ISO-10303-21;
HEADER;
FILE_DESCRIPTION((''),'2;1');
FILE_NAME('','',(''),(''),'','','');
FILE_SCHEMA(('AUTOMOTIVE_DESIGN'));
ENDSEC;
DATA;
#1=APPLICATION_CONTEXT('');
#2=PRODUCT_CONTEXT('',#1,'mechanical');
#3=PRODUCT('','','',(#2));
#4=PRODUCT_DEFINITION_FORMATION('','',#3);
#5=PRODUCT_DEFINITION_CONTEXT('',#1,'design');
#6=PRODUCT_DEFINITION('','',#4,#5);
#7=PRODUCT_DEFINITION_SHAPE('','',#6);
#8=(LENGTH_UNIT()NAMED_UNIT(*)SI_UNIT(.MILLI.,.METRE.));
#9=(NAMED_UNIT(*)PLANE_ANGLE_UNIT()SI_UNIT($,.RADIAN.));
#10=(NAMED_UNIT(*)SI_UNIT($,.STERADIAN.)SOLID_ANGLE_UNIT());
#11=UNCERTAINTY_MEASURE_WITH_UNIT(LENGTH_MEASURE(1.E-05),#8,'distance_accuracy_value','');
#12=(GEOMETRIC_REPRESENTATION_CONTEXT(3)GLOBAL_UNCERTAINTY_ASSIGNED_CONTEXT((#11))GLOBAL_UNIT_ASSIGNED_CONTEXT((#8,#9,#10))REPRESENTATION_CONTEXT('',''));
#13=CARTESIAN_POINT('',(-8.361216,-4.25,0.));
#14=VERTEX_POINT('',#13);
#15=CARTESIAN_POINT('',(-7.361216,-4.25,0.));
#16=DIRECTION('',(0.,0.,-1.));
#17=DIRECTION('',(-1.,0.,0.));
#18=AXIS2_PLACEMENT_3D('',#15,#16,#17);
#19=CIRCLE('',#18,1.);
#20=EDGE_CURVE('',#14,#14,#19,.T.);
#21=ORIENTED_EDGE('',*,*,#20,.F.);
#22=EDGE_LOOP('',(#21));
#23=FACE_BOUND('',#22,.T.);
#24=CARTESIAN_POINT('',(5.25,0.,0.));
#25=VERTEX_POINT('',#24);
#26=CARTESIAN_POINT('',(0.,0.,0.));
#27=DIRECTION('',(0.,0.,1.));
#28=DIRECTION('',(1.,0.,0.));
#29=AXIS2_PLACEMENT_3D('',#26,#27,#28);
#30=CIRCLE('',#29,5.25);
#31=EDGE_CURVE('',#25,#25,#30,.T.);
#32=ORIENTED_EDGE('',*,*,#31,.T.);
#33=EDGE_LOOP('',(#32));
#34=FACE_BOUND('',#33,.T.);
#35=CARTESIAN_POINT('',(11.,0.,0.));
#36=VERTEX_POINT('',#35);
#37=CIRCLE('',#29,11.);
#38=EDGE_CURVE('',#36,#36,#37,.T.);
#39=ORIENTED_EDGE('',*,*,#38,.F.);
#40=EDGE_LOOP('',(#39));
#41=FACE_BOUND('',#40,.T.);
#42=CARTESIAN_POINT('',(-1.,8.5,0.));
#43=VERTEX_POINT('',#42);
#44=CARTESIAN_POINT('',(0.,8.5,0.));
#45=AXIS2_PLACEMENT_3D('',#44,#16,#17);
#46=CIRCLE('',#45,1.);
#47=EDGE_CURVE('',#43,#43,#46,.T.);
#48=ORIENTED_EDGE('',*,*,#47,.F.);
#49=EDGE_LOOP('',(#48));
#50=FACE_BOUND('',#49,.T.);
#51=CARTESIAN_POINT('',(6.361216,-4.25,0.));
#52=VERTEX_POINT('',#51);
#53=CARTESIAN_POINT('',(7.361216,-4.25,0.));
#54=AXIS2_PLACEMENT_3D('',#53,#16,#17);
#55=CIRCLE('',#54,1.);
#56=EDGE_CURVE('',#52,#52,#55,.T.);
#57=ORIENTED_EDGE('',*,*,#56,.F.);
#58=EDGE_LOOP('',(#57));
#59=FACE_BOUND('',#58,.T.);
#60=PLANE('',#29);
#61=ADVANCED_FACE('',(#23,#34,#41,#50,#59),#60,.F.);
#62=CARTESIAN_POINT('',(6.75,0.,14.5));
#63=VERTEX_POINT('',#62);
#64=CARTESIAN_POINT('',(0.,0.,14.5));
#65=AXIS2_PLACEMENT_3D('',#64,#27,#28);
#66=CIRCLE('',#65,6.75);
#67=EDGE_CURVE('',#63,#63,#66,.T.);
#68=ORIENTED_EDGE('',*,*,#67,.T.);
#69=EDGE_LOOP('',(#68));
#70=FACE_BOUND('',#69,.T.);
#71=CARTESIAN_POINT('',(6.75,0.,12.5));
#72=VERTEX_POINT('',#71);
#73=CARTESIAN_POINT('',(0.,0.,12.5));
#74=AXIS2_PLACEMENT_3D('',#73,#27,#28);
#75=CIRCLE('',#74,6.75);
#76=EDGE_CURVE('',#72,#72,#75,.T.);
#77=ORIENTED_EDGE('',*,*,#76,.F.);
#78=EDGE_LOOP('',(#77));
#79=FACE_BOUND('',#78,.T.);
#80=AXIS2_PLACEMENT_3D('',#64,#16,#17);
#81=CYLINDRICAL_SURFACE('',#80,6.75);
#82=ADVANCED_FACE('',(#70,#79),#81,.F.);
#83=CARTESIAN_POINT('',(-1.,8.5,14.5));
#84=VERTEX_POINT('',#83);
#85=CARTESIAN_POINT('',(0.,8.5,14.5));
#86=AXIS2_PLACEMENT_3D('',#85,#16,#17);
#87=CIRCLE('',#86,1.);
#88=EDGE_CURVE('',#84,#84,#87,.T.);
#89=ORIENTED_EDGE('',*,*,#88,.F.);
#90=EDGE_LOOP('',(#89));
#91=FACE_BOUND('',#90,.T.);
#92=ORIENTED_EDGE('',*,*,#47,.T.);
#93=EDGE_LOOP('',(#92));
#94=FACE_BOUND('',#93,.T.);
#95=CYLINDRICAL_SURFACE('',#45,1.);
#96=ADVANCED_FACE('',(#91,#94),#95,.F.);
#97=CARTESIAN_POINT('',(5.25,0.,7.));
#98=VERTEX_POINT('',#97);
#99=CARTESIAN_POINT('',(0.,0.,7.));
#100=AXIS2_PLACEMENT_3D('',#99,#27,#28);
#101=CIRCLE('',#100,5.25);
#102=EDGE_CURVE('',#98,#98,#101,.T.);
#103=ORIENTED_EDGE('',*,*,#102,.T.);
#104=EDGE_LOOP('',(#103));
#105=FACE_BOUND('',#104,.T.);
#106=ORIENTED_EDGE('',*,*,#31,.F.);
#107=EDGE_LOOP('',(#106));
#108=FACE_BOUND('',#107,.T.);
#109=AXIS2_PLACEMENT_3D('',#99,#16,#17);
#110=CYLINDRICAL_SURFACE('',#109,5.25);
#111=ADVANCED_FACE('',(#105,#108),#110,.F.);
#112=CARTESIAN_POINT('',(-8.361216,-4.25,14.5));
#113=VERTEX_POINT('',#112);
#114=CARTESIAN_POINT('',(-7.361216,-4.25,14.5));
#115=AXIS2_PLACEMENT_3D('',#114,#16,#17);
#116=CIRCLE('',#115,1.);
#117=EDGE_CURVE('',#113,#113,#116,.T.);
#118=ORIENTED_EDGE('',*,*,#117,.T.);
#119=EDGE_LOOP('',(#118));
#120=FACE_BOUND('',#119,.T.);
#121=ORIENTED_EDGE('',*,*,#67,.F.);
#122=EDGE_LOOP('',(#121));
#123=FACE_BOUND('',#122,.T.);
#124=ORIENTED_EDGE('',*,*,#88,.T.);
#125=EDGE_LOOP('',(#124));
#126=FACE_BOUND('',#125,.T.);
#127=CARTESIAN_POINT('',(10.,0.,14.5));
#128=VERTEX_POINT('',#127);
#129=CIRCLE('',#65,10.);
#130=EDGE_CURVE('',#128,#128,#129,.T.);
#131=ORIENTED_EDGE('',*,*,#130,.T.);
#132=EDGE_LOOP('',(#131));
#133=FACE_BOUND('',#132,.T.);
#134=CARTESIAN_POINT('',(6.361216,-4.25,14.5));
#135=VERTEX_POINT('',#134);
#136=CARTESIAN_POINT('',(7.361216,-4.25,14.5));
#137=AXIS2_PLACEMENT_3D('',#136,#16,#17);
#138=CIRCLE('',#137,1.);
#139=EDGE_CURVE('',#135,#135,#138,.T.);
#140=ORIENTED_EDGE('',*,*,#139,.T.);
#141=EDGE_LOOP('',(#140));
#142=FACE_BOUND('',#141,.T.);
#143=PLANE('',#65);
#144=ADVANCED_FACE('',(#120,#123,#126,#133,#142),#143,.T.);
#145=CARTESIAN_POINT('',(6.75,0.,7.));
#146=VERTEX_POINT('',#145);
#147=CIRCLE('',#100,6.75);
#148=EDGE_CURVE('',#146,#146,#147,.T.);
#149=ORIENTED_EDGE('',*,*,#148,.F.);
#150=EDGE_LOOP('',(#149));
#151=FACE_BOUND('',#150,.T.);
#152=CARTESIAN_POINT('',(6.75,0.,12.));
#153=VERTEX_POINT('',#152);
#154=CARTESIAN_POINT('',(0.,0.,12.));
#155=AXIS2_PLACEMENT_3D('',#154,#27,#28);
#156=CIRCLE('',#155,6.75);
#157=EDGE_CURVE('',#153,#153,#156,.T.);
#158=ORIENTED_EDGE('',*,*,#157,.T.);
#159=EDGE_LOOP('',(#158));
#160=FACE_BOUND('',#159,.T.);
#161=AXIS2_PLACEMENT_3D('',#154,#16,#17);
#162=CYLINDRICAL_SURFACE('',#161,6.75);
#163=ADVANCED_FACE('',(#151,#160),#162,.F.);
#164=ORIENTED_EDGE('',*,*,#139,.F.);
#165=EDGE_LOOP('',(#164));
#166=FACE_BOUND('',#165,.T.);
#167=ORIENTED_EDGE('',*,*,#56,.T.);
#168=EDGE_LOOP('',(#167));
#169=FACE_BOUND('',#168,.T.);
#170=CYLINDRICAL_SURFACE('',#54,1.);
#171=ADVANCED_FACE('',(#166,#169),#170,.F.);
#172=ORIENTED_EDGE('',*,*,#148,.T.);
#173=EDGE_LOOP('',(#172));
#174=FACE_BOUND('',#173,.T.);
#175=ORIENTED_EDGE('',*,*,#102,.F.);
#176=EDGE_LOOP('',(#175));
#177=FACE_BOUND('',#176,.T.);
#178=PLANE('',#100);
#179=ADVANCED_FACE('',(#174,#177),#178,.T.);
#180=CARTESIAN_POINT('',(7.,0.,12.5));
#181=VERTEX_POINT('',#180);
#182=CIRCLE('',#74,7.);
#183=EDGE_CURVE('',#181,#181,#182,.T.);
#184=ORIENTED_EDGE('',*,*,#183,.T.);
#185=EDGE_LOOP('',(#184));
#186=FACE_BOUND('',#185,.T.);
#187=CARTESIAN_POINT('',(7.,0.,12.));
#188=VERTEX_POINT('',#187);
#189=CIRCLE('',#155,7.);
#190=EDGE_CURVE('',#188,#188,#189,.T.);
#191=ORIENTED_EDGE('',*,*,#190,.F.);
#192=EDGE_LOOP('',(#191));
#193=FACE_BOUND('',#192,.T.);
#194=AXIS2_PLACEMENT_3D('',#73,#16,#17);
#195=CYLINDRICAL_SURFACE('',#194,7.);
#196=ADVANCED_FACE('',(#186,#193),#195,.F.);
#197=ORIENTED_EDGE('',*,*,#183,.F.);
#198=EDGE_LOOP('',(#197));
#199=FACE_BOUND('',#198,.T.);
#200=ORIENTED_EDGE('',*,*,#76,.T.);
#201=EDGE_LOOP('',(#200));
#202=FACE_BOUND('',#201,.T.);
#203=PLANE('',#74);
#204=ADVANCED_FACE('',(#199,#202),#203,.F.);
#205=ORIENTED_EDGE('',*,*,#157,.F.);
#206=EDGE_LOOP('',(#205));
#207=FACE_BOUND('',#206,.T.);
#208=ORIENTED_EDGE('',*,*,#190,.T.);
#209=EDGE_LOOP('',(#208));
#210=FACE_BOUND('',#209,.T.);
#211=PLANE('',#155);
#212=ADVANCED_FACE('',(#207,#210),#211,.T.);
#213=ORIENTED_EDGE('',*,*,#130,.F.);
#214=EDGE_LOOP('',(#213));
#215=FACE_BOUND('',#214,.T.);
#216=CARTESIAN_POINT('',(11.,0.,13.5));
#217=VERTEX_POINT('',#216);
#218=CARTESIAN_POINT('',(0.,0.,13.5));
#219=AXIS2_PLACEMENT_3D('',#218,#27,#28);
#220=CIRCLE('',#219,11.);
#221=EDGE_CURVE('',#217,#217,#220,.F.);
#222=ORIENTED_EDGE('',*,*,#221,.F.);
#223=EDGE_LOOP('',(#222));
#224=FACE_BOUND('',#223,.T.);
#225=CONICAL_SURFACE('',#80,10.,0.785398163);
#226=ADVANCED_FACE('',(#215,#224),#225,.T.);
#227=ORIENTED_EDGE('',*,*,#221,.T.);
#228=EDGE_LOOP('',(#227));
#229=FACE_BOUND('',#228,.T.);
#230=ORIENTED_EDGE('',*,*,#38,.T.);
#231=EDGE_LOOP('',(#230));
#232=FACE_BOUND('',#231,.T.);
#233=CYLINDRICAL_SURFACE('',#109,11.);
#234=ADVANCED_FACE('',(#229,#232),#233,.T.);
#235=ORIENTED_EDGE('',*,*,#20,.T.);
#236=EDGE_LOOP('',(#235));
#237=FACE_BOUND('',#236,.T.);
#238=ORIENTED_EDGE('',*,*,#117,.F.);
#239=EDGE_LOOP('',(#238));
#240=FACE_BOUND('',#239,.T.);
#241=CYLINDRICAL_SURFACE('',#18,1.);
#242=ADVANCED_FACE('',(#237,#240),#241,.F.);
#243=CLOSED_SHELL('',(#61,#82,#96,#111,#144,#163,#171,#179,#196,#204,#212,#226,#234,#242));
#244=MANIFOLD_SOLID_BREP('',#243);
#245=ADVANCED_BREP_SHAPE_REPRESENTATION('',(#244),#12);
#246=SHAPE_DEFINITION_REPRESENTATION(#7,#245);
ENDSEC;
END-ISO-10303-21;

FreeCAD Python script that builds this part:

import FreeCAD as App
import Part
import Sketcher

V = App.Vector


def edges_at(feature, points):
    """Names of the edges that pass closest to the given points."""
    edges = feature.Shape.Edges
    near = lambda p: min(range(len(edges)), key=lambda i: edges[i].distToShape(Part.Vertex(*p))[0])
    return sorted({f"Edge{near(p) + 1}" for p in points})

doc = App.newDocument("Part")
body = doc.addObject("PartDesign::Body", "Body")

sketch1 = body.newObject("Sketcher::SketchObject", "Sketch")
sketch1.AttachmentSupport = (doc.getObject("XY_Plane"), [""])
sketch1.MapMode = "FlatFace"
sketch1.addGeometry([
    Part.Circle(V(0, 0, 0), V(0, 0, 1), 11),
    Part.Circle(V(0, 0, 0), V(0, 0, 1), 5),
], False)
sketch1.addConstraint([
    Sketcher.Constraint("Coincident", 0, 3, -1, 1),
    Sketcher.Constraint("Coincident", 1, 3, -1, 1),
    Sketcher.Constraint("Diameter", 0, 22.0),
    Sketcher.Constraint("Diameter", 1, 10.5),
])
pad1 = body.newObject("PartDesign::Pad", "Pad")
pad1.Profile = sketch1
pad1.Length = 7

sketch2 = body.newObject("Sketcher::SketchObject", "Sketch001")
sketch2.AttachmentSupport = (doc.getObject("XY_Plane"), [""])
sketch2.MapMode = "FlatFace"
sketch2.AttachmentOffset = App.Placement(V(0, 0, 7), App.Rotation())
sketch2.addGeometry([
    Part.Circle(V(0, 0, 0), V(0, 0, 1), 11),
    Part.Circle(V(0, 0, 0), V(0, 0, 1), 7),
], False)
sketch2.addConstraint([
    Sketcher.Constraint("Coincident", 0, 3, -1, 1),
    Sketcher.Constraint("Coincident", 1, 3, -1, 1),
    Sketcher.Constraint("Diameter", 0, 22.0),
    Sketcher.Constraint("Diameter", 1, 13.5),
])
pad2 = body.newObject("PartDesign::Pad", "Pad001")
pad2.Profile = sketch2
pad2.Length = 5

sketch3 = body.newObject("Sketcher::SketchObject", "Sketch002")
sketch3.AttachmentSupport = (doc.getObject("XY_Plane"), [""])
sketch3.MapMode = "FlatFace"
sketch3.AttachmentOffset = App.Placement(V(0, 0, 12), App.Rotation())
sketch3.addGeometry([
    Part.Circle(V(0, 0, 0), V(0, 0, 1), 11),
    Part.Circle(V(0, 0, 0), V(0, 0, 1), 7),
], False)
sketch3.addConstraint([
    Sketcher.Constraint("Coincident", 0, 3, -1, 1),
    Sketcher.Constraint("Coincident", 1, 3, -1, 1),
    Sketcher.Constraint("Diameter", 0, 22.0),
    Sketcher.Constraint("Diameter", 1, 14.0),
])
pad3 = body.newObject("PartDesign::Pad", "Pad002")
pad3.Profile = sketch3
pad3.Length = 0.5

sketch4 = body.newObject("Sketcher::SketchObject", "Sketch003")
sketch4.AttachmentSupport = (doc.getObject("XY_Plane"), [""])
sketch4.MapMode = "FlatFace"
sketch4.AttachmentOffset = App.Placement(V(0, 0, 12.5), App.Rotation())
sketch4.addGeometry([
    Part.Circle(V(0, 0, 0), V(0, 0, 1), 11),
    Part.Circle(V(0, 0, 0), V(0, 0, 1), 7),
], False)
sketch4.addConstraint([
    Sketcher.Constraint("Coincident", 0, 3, -1, 1),
    Sketcher.Constraint("Coincident", 1, 3, -1, 1),
    Sketcher.Constraint("Diameter", 0, 22.0),
    Sketcher.Constraint("Diameter", 1, 13.5),
])
pad4 = body.newObject("PartDesign::Pad", "Pad003")
pad4.Profile = sketch4
pad4.Length = 2
doc.recompute()

chamfer = body.newObject("PartDesign::Chamfer", "Chamfer")
chamfer.Base = (pad4, edges_at(pad4, [(-11, 0, 14.5)]))
chamfer.Size = 1

sketch5 = body.newObject("Sketcher::SketchObject", "Sketch004")
sketch5.AttachmentSupport = (doc.getObject("XY_Plane"), [""])
sketch5.MapMode = "FlatFace"
sketch5.addGeometry([
    Part.Circle(V(7.4, -4.2, 0), V(0, 0, 1), 1),
    Part.Circle(V(0, 8.5, 0), V(0, 0, 1), 1),
    Part.Circle(V(-7.4, -4.2, 0), V(0, 0, 1), 1),
], False)
sketch5.addConstraint([
    Sketcher.Constraint("Equal", 0, 1),
    Sketcher.Constraint("Equal", 1, 2),
    Sketcher.Constraint("Symmetric", 0, 3, 2, 3, -2),
    Sketcher.Constraint("PointOnObject", 1, 3, -2),
    Sketcher.Constraint("Diameter", 0, 2.0),
    Sketcher.Constraint("DistanceY", -1, 1, 1, 3, 8.5),
    Sketcher.Constraint("DistanceY", 0, 3, -1, 1, 4.25),
    Sketcher.Constraint("DistanceX", 2, 3, 0, 3, 14.722432),
])
doc.recompute()
hole = body.newObject("PartDesign::Hole", "Hole")
hole.Profile = sketch5
hole.ThreadType = "None"
hole.Diameter = 2
hole.DepthType = "ThroughAll"
hole.Reversed = True

doc.recompute()
